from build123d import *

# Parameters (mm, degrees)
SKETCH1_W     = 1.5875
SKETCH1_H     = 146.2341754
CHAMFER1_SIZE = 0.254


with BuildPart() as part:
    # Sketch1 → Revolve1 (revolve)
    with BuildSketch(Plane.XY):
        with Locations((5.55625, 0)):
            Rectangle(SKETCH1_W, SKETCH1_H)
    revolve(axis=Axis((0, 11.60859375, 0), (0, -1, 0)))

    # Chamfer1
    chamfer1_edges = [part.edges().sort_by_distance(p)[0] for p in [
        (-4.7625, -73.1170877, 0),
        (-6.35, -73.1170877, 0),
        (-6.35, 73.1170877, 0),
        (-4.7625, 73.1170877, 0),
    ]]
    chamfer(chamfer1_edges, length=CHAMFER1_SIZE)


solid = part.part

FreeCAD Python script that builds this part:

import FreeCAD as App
import Part
import Sketcher

V = App.Vector
Q = App.Units.Quantity


def edges_at(feature, points):
    """Names of the edges that pass closest to the given points."""
    edges = feature.Shape.Edges
    near = lambda p: min(range(len(edges)), key=lambda i: edges[i].distToShape(Part.Vertex(*p))[0])
    return sorted({f"Edge{near(p) + 1}" for p in points})


def add_polygon(sketch, points):
    """Adds a closed chain of lines whose ends are joined by coincident constraints."""
    first, n = sketch.GeometryCount, len(points)
    for a, b in zip(points, points[1:] + points[:1]):
        sketch.addGeometry(Part.LineSegment(App.Vector(*a, 0), App.Vector(*b, 0)), False)
    for i in range(n):
        sketch.addConstraint(Sketcher.Constraint("Coincident", first + i, 2, first + (i + 1) % n, 1))

doc = App.newDocument("Part")
body = doc.addObject("PartDesign::Body", "Body")

sketch1 = body.newObject("Sketcher::SketchObject", "Sketch")
sketch1.AttachmentSupport = (doc.getObject("XY_Plane"), [""])
sketch1.MapMode = "FlatFace"
add_polygon(sketch1, [(4.8, 73.1), (4.8, -73.1), (6.3, -73.1), (6.3, 73.1)])
sketch1.addConstraint([
    Sketcher.Constraint("Vertical", 0),
    Sketcher.Constraint("Horizontal", 1),
    Sketcher.Constraint("Vertical", 2),
    Sketcher.Constraint("Horizontal", 3),
    Sketcher.Constraint("DistanceX", 1, 1, 1, 2, Q("0.0625 in")),
    Sketcher.Constraint("DistanceX", -1, 1, 1, 2, Q("0.25 in")),
    Sketcher.Constraint("DistanceY", 0, 2, 0, 1, Q("146.234175 mm")),
    Sketcher.Constraint("DistanceY", 0, 2, -1, 1, Q("73.117088 mm")),
])
revolution = body.newObject("PartDesign::Revolution", "Revolution")
revolution.Profile = sketch1
revolution.ReferenceAxis = (sketch1, ["V_Axis"])
revolution.Angle = 360
doc.recompute()

chamfer = body.newObject("PartDesign::Chamfer", "Chamfer")
chamfer.Base = (revolution, edges_at(revolution, [
    (-4.763, -73.117, 0),
    (-6.35, -73.117, 0),
    (-6.35, 73.117, 0),
    (-4.763, 73.117, 0),
]))
chamfer.Size = Q("0.01 in")

doc.recompute()
